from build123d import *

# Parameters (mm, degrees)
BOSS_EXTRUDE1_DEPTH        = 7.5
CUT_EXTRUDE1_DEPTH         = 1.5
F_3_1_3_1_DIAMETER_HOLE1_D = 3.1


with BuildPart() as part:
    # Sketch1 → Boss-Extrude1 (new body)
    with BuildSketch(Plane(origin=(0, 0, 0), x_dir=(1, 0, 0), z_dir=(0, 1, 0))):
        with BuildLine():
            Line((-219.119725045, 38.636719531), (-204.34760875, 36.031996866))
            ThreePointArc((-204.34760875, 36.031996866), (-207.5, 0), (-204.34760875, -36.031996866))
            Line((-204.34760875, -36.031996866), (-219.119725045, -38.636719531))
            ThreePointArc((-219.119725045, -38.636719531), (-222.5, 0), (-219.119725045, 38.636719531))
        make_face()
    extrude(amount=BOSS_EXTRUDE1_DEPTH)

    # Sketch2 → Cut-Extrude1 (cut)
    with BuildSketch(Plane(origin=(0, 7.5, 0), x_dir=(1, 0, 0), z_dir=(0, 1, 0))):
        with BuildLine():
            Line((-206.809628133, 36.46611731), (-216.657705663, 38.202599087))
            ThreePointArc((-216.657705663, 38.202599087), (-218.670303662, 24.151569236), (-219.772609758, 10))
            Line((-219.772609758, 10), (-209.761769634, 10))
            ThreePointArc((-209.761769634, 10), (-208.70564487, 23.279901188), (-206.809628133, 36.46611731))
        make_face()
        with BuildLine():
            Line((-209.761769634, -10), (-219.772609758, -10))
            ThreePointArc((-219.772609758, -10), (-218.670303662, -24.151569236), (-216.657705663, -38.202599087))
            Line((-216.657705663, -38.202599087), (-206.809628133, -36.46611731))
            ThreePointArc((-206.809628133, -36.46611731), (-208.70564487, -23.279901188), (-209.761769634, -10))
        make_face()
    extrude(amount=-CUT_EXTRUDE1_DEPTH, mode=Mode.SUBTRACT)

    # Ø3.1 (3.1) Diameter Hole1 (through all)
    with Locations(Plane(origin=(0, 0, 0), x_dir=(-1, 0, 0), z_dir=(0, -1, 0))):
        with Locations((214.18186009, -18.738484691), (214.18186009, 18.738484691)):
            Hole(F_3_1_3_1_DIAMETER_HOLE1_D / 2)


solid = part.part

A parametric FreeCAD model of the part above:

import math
import FreeCAD as App
import Part
import Sketcher
Q = App.Units.Quantity

doc = App.newDocument("Part")
params = doc.addObject("Spreadsheet::Sheet", "Params")
for row, (alias, value) in enumerate([
    ("sketch1_radius", "222.5 mm"),
    ("sketch1_radius2", "207.5 mm"),
    ("pad1_length", "7.5 mm"),
    ("sketch2_radius", "220 mm"),
    ("sketch2_radius2", "210 mm"),
    ("pocket1_length", "1.5 mm"),
    ("sketch3_diameter", "3.1 mm"),
    ("hole_diameter", "3.1 mm"),
], start=1):
    params.set(f"A{row}", alias)
    params.set(f"B{row}", "=" + value)
    params.setAlias(f"B{row}", alias)

body = doc.addObject("PartDesign::Body", "Body")

sketch1 = body.newObject("Sketcher::SketchObject", "Sketch")
sketch1.AttachmentSupport = (doc.getObject("XZ_Plane"), [""])
sketch1.MapMode = "FlatFace"
sketch1.addGeometry([
    Part.LineSegment(App.Vector(-204.347609, -36.031997, 0), App.Vector(-219.119725, -38.63672, 0)),
    Part.ArcOfCircle(Part.Circle(App.Vector(0, 0, 0), App.Vector(0, 0, 1), 222.5), math.radians(170), math.radians(190)),
    Part.LineSegment(App.Vector(-219.119725, 38.63672, 0), App.Vector(-204.347609, 36.031997, 0)),
    Part.ArcOfCircle(Part.Circle(App.Vector(0, 0, 0), App.Vector(0, 0, 1), 207.5), math.radians(170), math.radians(190)),
], False)
sketch1.addConstraint([
    Sketcher.Constraint("Coincident", 0, 2, 1, 2),
    Sketcher.Constraint("Coincident", 1, 1, 2, 1),
    Sketcher.Constraint("Coincident", 2, 2, 3, 1),
    Sketcher.Constraint("Coincident", 3, 2, 0, 1),
    Sketcher.Constraint("Coincident", 1, 3, -1, 1),
    Sketcher.Constraint("Coincident", 3, 3, -1, 1),
    Sketcher.Constraint("Vertical", 0, 2, 1, 1),
    Sketcher.Constraint("Vertical", 2, 2, 3, 2),
    Sketcher.Constraint("Radius", 1, 222.5),
    Sketcher.Constraint("Radius", 3, 207.5),
    Sketcher.Constraint("Angle", 0, Q("-170 deg")),
    Sketcher.Constraint("DistanceY", 0, 2, -1, 1, 38.63672),
])
sketch1.setExpression("Constraints[8]", "Params.sketch1_radius")
sketch1.setExpression("Constraints[9]", "Params.sketch1_radius2")
pad1 = body.newObject("PartDesign::Pad", "Pad")
pad1.Profile = sketch1
pad1.setExpression("Length", "Params.pad1_length")
pad1.Reversed = True

sketch2 = body.newObject("Sketcher::SketchObject", "Sketch001")
sketch2.AttachmentSupport = (doc.getObject("XZ_Plane"), [""])
sketch2.MapMode = "FlatFace"
sketch2.AttachmentOffset = App.Placement(App.Vector(0, 0, -7.5), App.Rotation())
sketch2.addGeometry([
    Part.LineSegment(App.Vector(-206.809628, -36.466117, 0), App.Vector(-216.657706, -38.202599, 0)),
    Part.ArcOfCircle(Part.Circle(App.Vector(0, 0, 0), App.Vector(0, 0, 1), 220), math.radians(-177.394749), math.radians(-170)),
    Part.LineSegment(App.Vector(-219.77261, -10, 0), App.Vector(-209.76177, -10, 0)),
    Part.ArcOfCircle(Part.Circle(App.Vector(0, 0, 0), App.Vector(0, 0, 1), 210), math.radians(-177.270597), math.radians(-170)),
    Part.LineSegment(App.Vector(-209.76177, 10, 0), App.Vector(-219.77261, 10, 0)),
    Part.ArcOfCircle(Part.Circle(App.Vector(0, 0, 0), App.Vector(0, 0, 1), 220), math.radians(170), math.radians(177.394749)),
    Part.LineSegment(App.Vector(-216.657706, 38.202599, 0), App.Vector(-206.809628, 36.466117, 0)),
    Part.ArcOfCircle(Part.Circle(App.Vector(0, 0, 0), App.Vector(0, 0, 1), 210), math.radians(170), math.radians(177.270597)),
], False)
sketch2.addConstraint([
    Sketcher.Constraint("Coincident", 0, 2, 1, 2),
    Sketcher.Constraint("Coincident", 1, 1, 2, 1),
    Sketcher.Constraint("Coincident", 2, 2, 3, 1),
    Sketcher.Constraint("Coincident", 3, 2, 0, 1),
    Sketcher.Constraint("Coincident", 4, 2, 5, 2),
    Sketcher.Constraint("Coincident", 5, 1, 6, 1),
    Sketcher.Constraint("Coincident", 6, 2, 7, 1),
    Sketcher.Constraint("Coincident", 7, 2, 4, 1),
    Sketcher.Constraint("Horizontal", 2),
    Sketcher.Constraint("Horizontal", 4),
    Sketcher.Constraint("Coincident", 1, 3, -1, 1),
    Sketcher.Constraint("Coincident", 3, 3, -1, 1),
    Sketcher.Constraint("Coincident", 5, 3, -1, 1),
    Sketcher.Constraint("Coincident", 7, 3, -1, 1),
    Sketcher.Constraint("Equal", 1, 5),
    Sketcher.Constraint("Equal", 3, 7),
    Sketcher.Constraint("Vertical", 1, 1, 4, 2),
    Sketcher.Constraint("Vertical", 0, 2, 5, 1),
    Sketcher.Constraint("Vertical", 3, 2, 6, 2),
    Sketcher.Constraint("Radius", 1, 220.0),
    Sketcher.Constraint("Radius", 3, 210.0),
    Sketcher.Constraint("Angle", 0, Q("-170 deg")),
    Sketcher.Constraint("DistanceY", 1, 1, -1, 1, 10.0),
    Sketcher.Constraint("DistanceY", 0, 2, -1, 1, 38.202599),
])
sketch2.setExpression("Constraints[19]", "Params.sketch2_radius")
sketch2.setExpression("Constraints[20]", "Params.sketch2_radius2")
pocket1 = body.newObject("PartDesign::Pocket", "Pocket")
pocket1.Profile = sketch2
pocket1.setExpression("Length", "Params.pocket1_length")
pocket1.Reversed = True

sketch3 = body.newObject("Sketcher::SketchObject", "Sketch002")
sketch3.AttachmentSupport = (doc.getObject("XZ_Plane"), [""])
sketch3.MapMode = "FlatFace"
sketch3.addGeometry([
    Part.Circle(App.Vector(-214.18186, 18.738485, 0), App.Vector(0, 0, 1), 1.55),
    Part.Circle(App.Vector(-214.18186, -18.738485, 0), App.Vector(0, 0, 1), 1.55),
], False)
sketch3.addConstraint([
    Sketcher.Constraint("Equal", 0, 1),
    Sketcher.Constraint("Symmetric", 0, 3, 1, 3, -1),
    Sketcher.Constraint("Diameter", 0, 3.1),
    Sketcher.Constraint("DistanceX", 0, 3, -1, 1, 214.18186),
    Sketcher.Constraint("DistanceY", 1, 3, 0, 3, 37.476969),
])
sketch3.setExpression("Constraints[2]", "Params.sketch3_diameter")
doc.recompute()
hole = body.newObject("PartDesign::Hole", "Hole")
hole.Profile = sketch3
hole.ThreadType = "None"
hole.setExpression("Diameter", "Params.hole_diameter")
hole.DepthType = "ThroughAll"

doc.recompute()
